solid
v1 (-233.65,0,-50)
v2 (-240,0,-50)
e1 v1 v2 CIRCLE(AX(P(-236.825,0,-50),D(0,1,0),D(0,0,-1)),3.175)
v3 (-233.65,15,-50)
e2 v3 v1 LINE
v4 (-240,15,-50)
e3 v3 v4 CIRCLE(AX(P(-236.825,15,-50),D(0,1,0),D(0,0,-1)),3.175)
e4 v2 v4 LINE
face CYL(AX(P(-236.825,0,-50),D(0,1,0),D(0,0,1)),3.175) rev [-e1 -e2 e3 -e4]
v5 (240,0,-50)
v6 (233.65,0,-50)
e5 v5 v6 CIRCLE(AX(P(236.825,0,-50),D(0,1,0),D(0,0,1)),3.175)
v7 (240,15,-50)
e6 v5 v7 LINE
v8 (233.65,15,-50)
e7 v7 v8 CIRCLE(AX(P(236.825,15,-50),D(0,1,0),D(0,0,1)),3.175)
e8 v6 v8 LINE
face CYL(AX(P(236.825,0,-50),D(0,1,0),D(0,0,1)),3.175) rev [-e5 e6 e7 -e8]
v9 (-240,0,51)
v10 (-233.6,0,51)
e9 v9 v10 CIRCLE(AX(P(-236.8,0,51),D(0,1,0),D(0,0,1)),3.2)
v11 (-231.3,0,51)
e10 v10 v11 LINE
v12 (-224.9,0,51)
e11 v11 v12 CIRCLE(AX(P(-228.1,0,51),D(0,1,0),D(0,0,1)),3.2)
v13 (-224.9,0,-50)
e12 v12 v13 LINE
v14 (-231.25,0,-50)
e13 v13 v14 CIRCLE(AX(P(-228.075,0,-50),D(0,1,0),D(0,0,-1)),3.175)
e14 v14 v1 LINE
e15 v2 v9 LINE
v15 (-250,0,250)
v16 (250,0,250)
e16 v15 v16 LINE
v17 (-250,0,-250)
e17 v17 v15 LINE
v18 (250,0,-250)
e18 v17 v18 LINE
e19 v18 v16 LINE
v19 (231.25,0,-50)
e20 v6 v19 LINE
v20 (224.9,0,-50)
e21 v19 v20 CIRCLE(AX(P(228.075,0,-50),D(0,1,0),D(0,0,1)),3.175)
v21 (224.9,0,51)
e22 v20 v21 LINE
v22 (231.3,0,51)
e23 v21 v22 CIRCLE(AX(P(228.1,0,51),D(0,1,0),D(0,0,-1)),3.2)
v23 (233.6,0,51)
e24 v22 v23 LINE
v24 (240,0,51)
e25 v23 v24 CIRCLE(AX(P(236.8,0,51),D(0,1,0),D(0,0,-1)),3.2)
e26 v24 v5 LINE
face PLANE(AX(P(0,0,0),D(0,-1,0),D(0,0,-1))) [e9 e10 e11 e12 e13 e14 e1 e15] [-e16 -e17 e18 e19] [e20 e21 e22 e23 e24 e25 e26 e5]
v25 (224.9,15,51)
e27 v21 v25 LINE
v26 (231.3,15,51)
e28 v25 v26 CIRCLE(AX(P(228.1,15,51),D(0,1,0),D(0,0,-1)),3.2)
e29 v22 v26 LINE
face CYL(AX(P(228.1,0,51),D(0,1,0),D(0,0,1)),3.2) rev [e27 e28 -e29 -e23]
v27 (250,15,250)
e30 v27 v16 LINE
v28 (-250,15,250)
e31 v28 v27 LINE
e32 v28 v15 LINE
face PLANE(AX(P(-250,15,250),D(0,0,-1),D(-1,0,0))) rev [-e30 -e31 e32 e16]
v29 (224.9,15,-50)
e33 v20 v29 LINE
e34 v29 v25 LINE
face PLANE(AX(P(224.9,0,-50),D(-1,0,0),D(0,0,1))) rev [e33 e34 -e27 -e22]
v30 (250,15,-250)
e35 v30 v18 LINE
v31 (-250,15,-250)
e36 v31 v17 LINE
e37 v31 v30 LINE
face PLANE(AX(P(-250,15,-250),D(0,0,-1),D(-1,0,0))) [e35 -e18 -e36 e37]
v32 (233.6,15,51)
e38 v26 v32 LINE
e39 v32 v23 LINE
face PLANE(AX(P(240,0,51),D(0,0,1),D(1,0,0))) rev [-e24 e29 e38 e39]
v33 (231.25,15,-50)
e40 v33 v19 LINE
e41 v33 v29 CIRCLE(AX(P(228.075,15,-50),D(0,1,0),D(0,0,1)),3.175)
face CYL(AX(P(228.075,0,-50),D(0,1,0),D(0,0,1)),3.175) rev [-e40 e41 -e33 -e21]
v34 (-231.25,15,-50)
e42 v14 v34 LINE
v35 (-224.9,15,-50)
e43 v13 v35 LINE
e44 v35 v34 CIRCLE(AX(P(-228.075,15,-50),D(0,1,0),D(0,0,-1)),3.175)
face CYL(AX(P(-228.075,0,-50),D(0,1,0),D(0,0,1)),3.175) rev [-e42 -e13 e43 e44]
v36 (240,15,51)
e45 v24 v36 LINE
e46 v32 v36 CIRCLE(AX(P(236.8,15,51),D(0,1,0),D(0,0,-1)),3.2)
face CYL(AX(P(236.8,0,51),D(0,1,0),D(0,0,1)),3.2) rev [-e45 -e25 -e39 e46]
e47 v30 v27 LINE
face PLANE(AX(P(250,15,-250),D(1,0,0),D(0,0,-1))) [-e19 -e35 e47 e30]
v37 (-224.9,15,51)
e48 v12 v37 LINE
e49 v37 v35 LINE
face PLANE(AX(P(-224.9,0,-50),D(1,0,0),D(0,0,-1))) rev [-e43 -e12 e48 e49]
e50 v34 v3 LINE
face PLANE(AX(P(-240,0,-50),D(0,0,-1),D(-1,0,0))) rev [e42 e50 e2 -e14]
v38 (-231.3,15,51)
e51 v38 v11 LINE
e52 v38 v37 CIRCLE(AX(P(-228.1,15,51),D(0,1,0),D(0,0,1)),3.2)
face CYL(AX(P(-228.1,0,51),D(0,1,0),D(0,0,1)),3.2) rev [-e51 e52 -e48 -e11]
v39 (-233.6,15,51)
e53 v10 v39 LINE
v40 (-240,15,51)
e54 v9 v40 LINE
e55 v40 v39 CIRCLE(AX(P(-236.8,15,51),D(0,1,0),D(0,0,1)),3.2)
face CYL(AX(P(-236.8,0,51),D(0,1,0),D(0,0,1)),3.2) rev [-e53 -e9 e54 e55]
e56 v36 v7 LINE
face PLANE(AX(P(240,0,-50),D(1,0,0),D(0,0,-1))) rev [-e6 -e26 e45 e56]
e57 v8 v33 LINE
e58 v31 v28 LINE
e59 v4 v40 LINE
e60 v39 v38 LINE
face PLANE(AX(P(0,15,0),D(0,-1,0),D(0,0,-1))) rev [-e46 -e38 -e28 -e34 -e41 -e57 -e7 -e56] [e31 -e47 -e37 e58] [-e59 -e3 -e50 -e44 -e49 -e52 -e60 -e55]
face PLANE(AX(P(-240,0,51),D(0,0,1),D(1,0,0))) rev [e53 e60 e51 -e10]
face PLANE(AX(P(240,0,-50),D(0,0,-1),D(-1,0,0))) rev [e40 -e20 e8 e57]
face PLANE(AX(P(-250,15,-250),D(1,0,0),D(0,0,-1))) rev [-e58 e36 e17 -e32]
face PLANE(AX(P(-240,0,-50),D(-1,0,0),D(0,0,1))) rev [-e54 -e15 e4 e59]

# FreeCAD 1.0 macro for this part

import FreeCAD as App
import Part
import Sketcher
Q = App.Units.Quantity


def add_polygon(sketch, points):
    """Adds a closed chain of lines whose ends are joined by coincident constraints."""
    first, n = sketch.GeometryCount, len(points)
    for a, b in zip(points, points[1:] + points[:1]):
        sketch.addGeometry(Part.LineSegment(App.Vector(*a, 0), App.Vector(*b, 0)), False)
    for i in range(n):
        sketch.addConstraint(Sketcher.Constraint("Coincident", first + i, 2, first + (i + 1) % n, 1))

doc = App.newDocument("Part")
params = doc.addObject("Spreadsheet::Sheet", "Params")
for row, (alias, value) in enumerate([
    ("sketch1_width", "500 mm"),
    ("pad1_length", "15 mm"),
    ("sketch2_height", "101 mm"),
    ("sketch2_width", "15.1 mm"),
    ("sketch3_diameter", "6.4 mm"),
    ("sketch3_diameter2", "6.35 mm"),
], start=1):
    params.set(f"A{row}", alias)
    params.set(f"B{row}", "=" + value)
    params.setAlias(f"B{row}", alias)

body = doc.addObject("PartDesign::Body", "Body")

# Sketch on XZ plane
sketch1 = body.newObject("Sketcher::SketchObject", "Sketch")
sketch1.AttachmentSupport = (doc.getObject("XZ_Plane"), [""])
sketch1.MapMode = "FlatFace"
add_polygon(sketch1, [(-250, -250), (-250, 250), (250, 250), (250, -250)])  # lines 0-3
sketch1.addConstraint(Sketcher.Constraint("Vertical", 0))
sketch1.addConstraint(Sketcher.Constraint("Horizontal", 1))
sketch1.addConstraint(Sketcher.Constraint("Vertical", 2))
sketch1.addConstraint(Sketcher.Constraint("Horizontal", 3))
sketch1.addConstraint(Sketcher.Constraint("Symmetric", 0, 2, 2, 2, -1, 1))
sketch1.addConstraint(Sketcher.Constraint("Equal", 3, 0))
sketch1.addConstraint(Sketcher.Constraint("DistanceX", 1, 1, 1, 2, Q("500 mm")))
sketch1.setExpression("Constraints[10]", "Params.sketch1_width")
pad1 = body.newObject("PartDesign::Pad", "Pad")
pad1.Profile = sketch1
pad1.setExpression("Length", "Params.pad1_length")
pad1.Reversed = True

# Sketch on XZ plane
sketch2 = body.newObject("Sketcher::SketchObject", "Sketch001")
sketch2.AttachmentSupport = (doc.getObject("XZ_Plane"), [""])
sketch2.MapMode = "FlatFace"
sketch2.AttachmentOffset = App.Placement(App.Vector(0, 0, -15), App.Rotation())
add_polygon(sketch2, [(-240, -50), (-240, 51), (-225, 51), (-225, -50)])  # lines 0-3
add_polygon(sketch2, [(225, -50), (225, 51), (240, 51), (240, -50)])  # lines 4-7
sketch2.addConstraint(Sketcher.Constraint("Vertical", 0))
sketch2.addConstraint(Sketcher.Constraint("Horizontal", 1))
sketch2.addConstraint(Sketcher.Constraint("Vertical", 2))
sketch2.addConstraint(Sketcher.Constraint("Horizontal", 3))
sketch2.addConstraint(Sketcher.Constraint("Vertical", 4))
sketch2.addConstraint(Sketcher.Constraint("Horizontal", 5))
sketch2.addConstraint(Sketcher.Constraint("Vertical", 6))
sketch2.addConstraint(Sketcher.Constraint("Horizontal", 7))
sketch2.addConstraint(Sketcher.Constraint("Symmetric", 1, 2, 4, 2, -2))
sketch2.addConstraint(Sketcher.Constraint("Symmetric", 3, 2, 6, 2, -2))
sketch2.addConstraint(Sketcher.Constraint("DistanceY", 0, 1, 0, 2, Q("101 mm")))
sketch2.addConstraint(Sketcher.Constraint("DistanceX", 1, 1, 1, 2, Q("15.1 mm")))
sketch2.addConstraint(Sketcher.Constraint("DistanceX", 0, 2, -1, 1, Q("240 mm")))
sketch2.addConstraint(Sketcher.Constraint("DistanceY", -1, 1, 0, 2, Q("51 mm")))
sketch2.setExpression("Constraints[18]", "Params.sketch2_height")
sketch2.setExpression("Constraints[19]", "Params.sketch2_width")
pocket1 = body.newObject("PartDesign::Pocket", "Pocket")
pocket1.Profile = sketch2
pocket1.Type = "ThroughAll"
pocket1.Reversed = True

# Sketch on XZ plane
sketch3 = body.newObject("Sketcher::SketchObject", "Sketch002")
sketch3.AttachmentSupport = (doc.getObject("XZ_Plane"), [""])
sketch3.MapMode = "FlatFace"
sketch3.AttachmentOffset = App.Placement(App.Vector(0, 0, -15), App.Rotation())
sketch3.addGeometry(Part.Circle(App.Vector(-228.1, 51, 0), App.Vector(0, 0, 1), 3.2), False)
sketch3.addGeometry(Part.Circle(App.Vector(-236.8, 51, 0), App.Vector(0, 0, 1), 3.2), False)
sketch3.addGeometry(Part.Circle(App.Vector(-228.1, -50, 0), App.Vector(0, 0, 1), 3.2), False)
sketch3.addGeometry(Part.Circle(App.Vector(-236.8, -50, 0), App.Vector(0, 0, 1), 3.2), False)
sketch3.addGeometry(Part.Circle(App.Vector(236.8, 51, 0), App.Vector(0, 0, 1), 3.2), False)
sketch3.addGeometry(Part.Circle(App.Vector(228.1, 51, 0), App.Vector(0, 0, 1), 3.2), False)
sketch3.addGeometry(Part.Circle(App.Vector(228.1, -50, 0), App.Vector(0, 0, 1), 3.2), False)
sketch3.addGeometry(Part.Circle(App.Vector(236.8, -50, 0), App.Vector(0, 0, 1), 3.2), False)
sketch3.addConstraint(Sketcher.Constraint("Equal", 0, 1))
sketch3.addConstraint(Sketcher.Constraint("Equal", 2, 3))
sketch3.addConstraint(Sketcher.Constraint("Equal", 1, 4))
sketch3.addConstraint(Sketcher.Constraint("Equal", 4, 5))
sketch3.addConstraint(Sketcher.Constraint("Equal", 3, 6))
sketch3.addConstraint(Sketcher.Constraint("Equal", 6, 7))
sketch3.addConstraint(Sketcher.Constraint("Symmetric", 1, 3, 4, 3, -2))
sketch3.addConstraint(Sketcher.Constraint("Symmetric", 0, 3, 5, 3, -2))
sketch3.addConstraint(Sketcher.Constraint("Symmetric", 2, 3, 6, 3, -2))
sketch3.addConstraint(Sketcher.Constraint("Symmetric", 3, 3, 7, 3, -2))
sketch3.addConstraint(Sketcher.Constraint("Horizontal", 0, 3, 1, 3))
sketch3.addConstraint(Sketcher.Constraint("Horizontal", 2, 3, 3, 3))
sketch3.addConstraint(Sketcher.Constraint("Diameter", 0, Q("6.4 mm")))
sketch3.addConstraint(Sketcher.Constraint("Diameter", 2, Q("6.35 mm")))
sketch3.addConstraint(Sketcher.Constraint("DistanceY", -1, 1, 0, 3, Q("51 mm")))
sketch3.addConstraint(Sketcher.Constraint("DistanceY", 2, 3, -1, 1, Q("50 mm")))
sketch3.addConstraint(Sketcher.Constraint("DistanceX", 0, 3, -1, 1, Q("228.1 mm")))
sketch3.addConstraint(Sketcher.Constraint("DistanceX", 1, 3, -1, 1, Q("236.8 mm")))
sketch3.addConstraint(Sketcher.Constraint("DistanceX", 3, 3, 6, 3, Q("464.9 mm")))
sketch3.addConstraint(Sketcher.Constraint("DistanceX", 3, 3, 2, 3, Q("8.75 mm")))
sketch3.setExpression("Constraints[12]", "Params.sketch3_diameter")
sketch3.setExpression("Constraints[13]", "Params.sketch3_diameter2")
pocket2 = body.newObject("PartDesign::Pocket", "Pocket001")
pocket2.Profile = sketch3
pocket2.Type = "ThroughAll"
pocket2.Reversed = True

doc.recompute()
